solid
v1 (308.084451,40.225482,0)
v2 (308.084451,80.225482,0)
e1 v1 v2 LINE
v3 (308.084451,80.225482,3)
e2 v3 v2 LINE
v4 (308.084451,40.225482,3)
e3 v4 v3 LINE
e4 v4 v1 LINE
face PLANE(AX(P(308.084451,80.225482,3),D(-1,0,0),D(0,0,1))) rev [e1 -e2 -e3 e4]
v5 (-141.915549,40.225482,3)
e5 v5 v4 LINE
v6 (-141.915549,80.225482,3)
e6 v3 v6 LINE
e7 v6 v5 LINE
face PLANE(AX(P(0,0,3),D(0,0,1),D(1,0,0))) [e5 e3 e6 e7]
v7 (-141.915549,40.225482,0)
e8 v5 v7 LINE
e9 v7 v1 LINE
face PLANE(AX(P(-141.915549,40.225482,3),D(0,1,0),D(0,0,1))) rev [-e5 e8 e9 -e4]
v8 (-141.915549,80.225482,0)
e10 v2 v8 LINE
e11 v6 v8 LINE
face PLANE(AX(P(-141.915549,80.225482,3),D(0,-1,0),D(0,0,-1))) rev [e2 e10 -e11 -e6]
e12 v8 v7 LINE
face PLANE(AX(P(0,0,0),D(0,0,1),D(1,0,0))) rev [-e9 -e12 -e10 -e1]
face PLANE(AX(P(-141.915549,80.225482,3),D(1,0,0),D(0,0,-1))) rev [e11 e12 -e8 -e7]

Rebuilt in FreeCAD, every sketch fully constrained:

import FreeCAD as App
import Part
import Sketcher
from FreeCAD import Vector
Q = App.Units.Quantity


def add_polygon(sketch, points):
    """Adds a closed chain of lines whose ends are joined by coincident constraints."""
    first, n = sketch.GeometryCount, len(points)
    for a, b in zip(points, points[1:] + points[:1]):
        sketch.addGeometry(Part.LineSegment(App.Vector(*a, 0), App.Vector(*b, 0)), False)
    for i in range(n):
        sketch.addConstraint(Sketcher.Constraint("Coincident", first + i, 2, first + (i + 1) % n, 1))

doc = App.newDocument("Part")
params = doc.addObject("Spreadsheet::Sheet", "Params")
for row, (alias, value) in enumerate([
    ("sketch1_width", "450 mm"),
    ("sketch1_height", "40 mm"),
    ("pad1_length", "3 mm"),
], start=1):
    params.set(f"A{row}", alias)
    params.set(f"B{row}", "=" + value)
    params.setAlias(f"B{row}", alias)

body = doc.addObject("PartDesign::Body", "Body")

# Sketch on XY plane
sketch1 = body.newObject("Sketcher::SketchObject", "Sketch")
sketch1.AttachmentSupport = (doc.getObject("XY_Plane"), [""])
sketch1.MapMode = "FlatFace"
add_polygon(sketch1, [(-141.915549, 80.225482), (-141.915549, 40.225482), (308.084451, 40.225482), (308.084451, 80.225482)])  # lines 0-3
sketch1.addConstraint([
    Sketcher.Constraint("Vertical", 0),
    Sketcher.Constraint("Horizontal", 1),
    Sketcher.Constraint("Vertical", 2),
    Sketcher.Constraint("Horizontal", 3),
    Sketcher.Constraint("DistanceX", 1, 1, 1, 2, Q("450 mm")),
    Sketcher.Constraint("DistanceY", 0, 2, 0, 1, Q("40 mm")),
    Sketcher.Constraint("DistanceX", 0, 2, -1, 1, Q("141.915549 mm")),
    Sketcher.Constraint("DistanceY", -1, 1, 0, 2, Q("40.225482 mm")),
])
sketch1.setExpression("Constraints[8]", "Params.sketch1_width")
sketch1.setExpression("Constraints[9]", "Params.sketch1_height")
pad1 = body.newObject("PartDesign::Pad", "Pad")
pad1.Profile = sketch1
pad1.setExpression("Length", "Params.pad1_length")

doc.recompute()
